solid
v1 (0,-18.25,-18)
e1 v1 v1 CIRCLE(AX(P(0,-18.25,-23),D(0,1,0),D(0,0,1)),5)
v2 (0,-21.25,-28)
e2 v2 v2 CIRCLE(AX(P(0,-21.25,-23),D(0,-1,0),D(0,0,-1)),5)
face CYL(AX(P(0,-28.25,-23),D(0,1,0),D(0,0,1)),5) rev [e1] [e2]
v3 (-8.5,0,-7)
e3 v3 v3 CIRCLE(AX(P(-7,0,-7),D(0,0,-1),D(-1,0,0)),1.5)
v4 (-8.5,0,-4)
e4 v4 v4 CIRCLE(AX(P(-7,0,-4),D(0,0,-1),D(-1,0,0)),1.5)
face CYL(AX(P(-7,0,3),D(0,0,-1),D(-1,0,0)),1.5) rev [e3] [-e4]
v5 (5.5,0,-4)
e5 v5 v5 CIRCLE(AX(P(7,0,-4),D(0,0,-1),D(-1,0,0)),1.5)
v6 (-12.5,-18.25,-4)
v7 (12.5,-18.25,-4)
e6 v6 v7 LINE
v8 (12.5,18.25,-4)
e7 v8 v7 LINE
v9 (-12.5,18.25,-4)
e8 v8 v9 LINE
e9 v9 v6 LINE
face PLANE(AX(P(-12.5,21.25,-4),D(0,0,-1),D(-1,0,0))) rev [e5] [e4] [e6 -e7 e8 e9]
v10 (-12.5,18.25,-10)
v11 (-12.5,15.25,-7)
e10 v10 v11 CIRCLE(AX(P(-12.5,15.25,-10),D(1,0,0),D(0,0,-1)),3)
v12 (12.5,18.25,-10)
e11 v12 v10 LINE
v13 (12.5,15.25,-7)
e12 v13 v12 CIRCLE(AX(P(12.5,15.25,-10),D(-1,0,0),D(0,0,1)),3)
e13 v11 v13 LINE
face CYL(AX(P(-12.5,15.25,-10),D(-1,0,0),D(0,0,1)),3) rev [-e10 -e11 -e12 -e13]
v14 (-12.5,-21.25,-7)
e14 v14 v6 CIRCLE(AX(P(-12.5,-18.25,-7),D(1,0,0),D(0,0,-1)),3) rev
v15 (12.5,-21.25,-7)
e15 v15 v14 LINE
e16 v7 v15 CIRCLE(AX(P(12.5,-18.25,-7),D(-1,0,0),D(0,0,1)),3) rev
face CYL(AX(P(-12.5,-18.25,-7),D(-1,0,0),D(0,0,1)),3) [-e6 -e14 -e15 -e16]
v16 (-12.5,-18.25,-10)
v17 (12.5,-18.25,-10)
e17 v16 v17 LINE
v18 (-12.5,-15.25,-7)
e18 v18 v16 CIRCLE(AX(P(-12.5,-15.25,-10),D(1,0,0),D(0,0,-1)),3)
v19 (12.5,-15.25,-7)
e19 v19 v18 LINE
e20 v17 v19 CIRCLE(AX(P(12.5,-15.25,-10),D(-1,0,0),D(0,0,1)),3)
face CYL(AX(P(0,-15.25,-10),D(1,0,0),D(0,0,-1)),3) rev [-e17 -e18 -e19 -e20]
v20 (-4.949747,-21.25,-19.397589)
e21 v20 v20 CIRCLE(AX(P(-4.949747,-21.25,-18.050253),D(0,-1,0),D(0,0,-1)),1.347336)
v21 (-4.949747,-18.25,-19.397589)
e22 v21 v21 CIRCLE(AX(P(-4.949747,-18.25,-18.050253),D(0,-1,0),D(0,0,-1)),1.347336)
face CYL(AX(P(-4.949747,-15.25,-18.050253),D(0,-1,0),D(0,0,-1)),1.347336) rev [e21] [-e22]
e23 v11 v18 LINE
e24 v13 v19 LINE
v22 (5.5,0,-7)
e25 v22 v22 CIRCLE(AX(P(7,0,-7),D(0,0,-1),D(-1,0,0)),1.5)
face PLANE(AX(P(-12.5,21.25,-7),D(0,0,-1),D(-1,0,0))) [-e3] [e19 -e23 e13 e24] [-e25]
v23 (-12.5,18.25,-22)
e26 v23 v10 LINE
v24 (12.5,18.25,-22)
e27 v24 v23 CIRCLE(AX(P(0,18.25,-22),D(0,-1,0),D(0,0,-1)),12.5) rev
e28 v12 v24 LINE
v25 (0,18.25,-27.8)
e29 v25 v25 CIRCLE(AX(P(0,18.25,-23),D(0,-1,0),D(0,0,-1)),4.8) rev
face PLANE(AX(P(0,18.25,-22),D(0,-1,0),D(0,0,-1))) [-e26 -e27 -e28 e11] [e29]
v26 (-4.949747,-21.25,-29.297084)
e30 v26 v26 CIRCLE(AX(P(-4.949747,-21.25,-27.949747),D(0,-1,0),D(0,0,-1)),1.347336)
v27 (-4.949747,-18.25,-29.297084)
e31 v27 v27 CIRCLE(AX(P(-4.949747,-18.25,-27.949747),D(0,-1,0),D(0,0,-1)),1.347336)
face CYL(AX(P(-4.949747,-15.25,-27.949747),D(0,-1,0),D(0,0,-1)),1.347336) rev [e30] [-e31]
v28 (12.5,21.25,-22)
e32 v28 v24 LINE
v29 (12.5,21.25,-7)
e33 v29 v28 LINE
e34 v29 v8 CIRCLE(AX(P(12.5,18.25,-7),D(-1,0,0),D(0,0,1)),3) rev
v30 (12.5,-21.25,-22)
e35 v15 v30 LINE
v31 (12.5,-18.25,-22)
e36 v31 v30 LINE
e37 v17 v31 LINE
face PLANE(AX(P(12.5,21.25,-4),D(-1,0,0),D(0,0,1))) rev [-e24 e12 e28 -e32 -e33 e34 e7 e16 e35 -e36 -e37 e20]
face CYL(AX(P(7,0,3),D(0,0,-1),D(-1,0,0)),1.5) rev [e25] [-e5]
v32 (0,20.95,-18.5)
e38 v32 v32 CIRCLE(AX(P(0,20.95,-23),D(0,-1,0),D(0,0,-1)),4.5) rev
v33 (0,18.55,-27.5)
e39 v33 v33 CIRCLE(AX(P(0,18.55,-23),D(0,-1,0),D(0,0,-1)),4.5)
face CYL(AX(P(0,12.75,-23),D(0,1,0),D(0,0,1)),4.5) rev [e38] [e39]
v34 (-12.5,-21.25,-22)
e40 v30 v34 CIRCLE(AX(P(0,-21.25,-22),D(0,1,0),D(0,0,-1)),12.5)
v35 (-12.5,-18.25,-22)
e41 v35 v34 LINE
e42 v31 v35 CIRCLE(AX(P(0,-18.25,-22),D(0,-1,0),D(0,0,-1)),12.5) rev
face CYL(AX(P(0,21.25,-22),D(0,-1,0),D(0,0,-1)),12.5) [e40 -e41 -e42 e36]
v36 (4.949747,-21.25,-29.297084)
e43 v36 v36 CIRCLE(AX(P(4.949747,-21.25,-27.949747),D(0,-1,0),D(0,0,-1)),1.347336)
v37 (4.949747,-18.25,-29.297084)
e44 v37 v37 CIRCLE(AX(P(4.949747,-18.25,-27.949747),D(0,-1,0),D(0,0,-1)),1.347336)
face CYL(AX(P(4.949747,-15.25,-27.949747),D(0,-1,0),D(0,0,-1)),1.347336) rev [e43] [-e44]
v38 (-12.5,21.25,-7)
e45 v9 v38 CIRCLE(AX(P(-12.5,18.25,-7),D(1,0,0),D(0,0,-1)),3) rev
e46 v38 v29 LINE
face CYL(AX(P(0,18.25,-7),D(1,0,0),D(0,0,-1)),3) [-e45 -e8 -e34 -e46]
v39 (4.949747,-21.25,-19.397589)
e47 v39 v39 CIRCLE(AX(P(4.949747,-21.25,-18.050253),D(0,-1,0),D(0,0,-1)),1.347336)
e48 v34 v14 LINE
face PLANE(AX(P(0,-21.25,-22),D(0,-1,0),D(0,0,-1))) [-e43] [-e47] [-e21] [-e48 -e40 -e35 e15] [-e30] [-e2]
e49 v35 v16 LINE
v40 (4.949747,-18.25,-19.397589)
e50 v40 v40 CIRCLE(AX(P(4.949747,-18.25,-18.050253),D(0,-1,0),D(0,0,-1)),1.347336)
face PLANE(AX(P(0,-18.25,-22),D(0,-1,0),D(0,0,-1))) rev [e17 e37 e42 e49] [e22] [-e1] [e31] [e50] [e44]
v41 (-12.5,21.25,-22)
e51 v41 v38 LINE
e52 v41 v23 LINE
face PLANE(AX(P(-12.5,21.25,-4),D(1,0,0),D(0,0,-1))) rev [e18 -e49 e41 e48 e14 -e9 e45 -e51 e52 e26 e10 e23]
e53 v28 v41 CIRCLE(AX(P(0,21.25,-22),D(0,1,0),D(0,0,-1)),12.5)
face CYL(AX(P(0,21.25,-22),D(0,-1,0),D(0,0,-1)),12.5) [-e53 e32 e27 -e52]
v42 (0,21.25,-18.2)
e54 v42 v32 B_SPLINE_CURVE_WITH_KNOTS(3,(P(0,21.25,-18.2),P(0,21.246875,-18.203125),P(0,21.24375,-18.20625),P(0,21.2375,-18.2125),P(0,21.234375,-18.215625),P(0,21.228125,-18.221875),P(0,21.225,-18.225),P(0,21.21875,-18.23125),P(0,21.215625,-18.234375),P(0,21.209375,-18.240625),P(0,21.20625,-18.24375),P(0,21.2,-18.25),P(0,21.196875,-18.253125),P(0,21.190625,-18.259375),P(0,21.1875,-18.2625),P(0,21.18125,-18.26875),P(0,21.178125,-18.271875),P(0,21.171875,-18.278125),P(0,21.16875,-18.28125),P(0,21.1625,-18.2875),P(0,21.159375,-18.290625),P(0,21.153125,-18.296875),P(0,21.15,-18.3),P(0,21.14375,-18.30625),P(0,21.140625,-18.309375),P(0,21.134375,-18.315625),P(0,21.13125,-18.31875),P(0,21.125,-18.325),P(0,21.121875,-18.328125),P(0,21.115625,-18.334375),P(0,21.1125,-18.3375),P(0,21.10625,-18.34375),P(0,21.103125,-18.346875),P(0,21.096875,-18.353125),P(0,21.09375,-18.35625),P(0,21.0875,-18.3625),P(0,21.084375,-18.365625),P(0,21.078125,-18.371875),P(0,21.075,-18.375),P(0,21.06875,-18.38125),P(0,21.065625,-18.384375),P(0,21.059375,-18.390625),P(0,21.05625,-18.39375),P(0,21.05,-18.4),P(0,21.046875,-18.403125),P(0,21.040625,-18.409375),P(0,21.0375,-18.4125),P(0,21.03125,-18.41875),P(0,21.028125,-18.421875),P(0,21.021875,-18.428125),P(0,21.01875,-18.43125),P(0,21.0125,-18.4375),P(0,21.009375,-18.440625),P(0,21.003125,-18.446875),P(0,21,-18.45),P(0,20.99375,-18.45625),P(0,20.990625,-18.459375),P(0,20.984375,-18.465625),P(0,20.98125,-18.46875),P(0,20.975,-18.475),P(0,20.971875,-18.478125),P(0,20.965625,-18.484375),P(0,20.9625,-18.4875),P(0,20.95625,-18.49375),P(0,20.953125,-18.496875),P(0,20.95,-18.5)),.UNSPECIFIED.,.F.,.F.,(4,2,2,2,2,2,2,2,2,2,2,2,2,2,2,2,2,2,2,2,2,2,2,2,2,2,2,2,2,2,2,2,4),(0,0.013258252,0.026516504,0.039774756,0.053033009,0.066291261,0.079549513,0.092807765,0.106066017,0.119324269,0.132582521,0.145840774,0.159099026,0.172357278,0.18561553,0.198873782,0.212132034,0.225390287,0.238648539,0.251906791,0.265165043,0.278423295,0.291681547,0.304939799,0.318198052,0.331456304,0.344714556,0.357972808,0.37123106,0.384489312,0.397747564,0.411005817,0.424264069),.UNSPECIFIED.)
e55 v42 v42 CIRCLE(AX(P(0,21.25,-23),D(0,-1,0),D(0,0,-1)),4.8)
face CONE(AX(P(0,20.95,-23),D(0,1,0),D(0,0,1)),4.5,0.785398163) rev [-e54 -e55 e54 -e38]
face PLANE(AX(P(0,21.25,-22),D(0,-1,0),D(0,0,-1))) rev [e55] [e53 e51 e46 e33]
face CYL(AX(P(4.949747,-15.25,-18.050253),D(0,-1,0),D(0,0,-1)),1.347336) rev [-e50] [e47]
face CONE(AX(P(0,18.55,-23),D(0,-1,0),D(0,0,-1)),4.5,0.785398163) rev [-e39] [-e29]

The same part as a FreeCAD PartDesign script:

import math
import FreeCAD as App
import Part
import Sketcher
from FreeCAD import Vector


def edges_at(feature, points):
    """Names of the edges that pass closest to the given points."""
    edges = feature.Shape.Edges
    near = lambda p: min(range(len(edges)), key=lambda i: edges[i].distToShape(Part.Vertex(*p))[0])
    return sorted({f"Edge{near(p) + 1}" for p in points})


def faces_at(feature, points):
    """Names of the faces that lie closest to the given points."""
    faces = feature.Shape.Faces
    near = lambda p: min(range(len(faces)), key=lambda i: faces[i].distToShape(Part.Vertex(*p))[0])
    return sorted({f"Face{near(p) + 1}" for p in points})

doc = App.newDocument("Part")
body = doc.addObject("PartDesign::Body", "Body")

# Sketch on XZ plane
sketch1 = body.newObject("Sketcher::SketchObject", "Sketch")
sketch1.AttachmentSupport = (doc.getObject("XZ_Plane"), [""])
sketch1.MapMode = "FlatFace"
sketch1.addGeometry([
    Part.LineSegment(Vector(-12, -4, 0), Vector(12, -4, 0)),
    Part.LineSegment(Vector(12, -4, 0), Vector(12, -22, 0)),
    Part.ArcOfCircle(Part.Circle(Vector(0, -22, 0), Vector(0, 0, 1), 12), math.radians(180), math.radians(360)),
    Part.LineSegment(Vector(-12, -22, 0), Vector(-12, -4, 0)),
], False)
sketch1.addConstraint([
    Sketcher.Constraint("Coincident", 0, 2, 1, 1),
    Sketcher.Constraint("Tangent", 1, 2, 2, 2),
    Sketcher.Constraint("Tangent", 2, 1, 3, 1),
    Sketcher.Constraint("Coincident", 3, 2, 0, 1),
    Sketcher.Constraint("Horizontal", 0),
    Sketcher.Constraint("Vertical", 1),
    Sketcher.Constraint("Vertical", 3),
    Sketcher.Constraint("PointOnObject", 2, 3, -2),
    Sketcher.Constraint("Radius", 2, 12.5),
    Sketcher.Constraint("DistanceY", 1, 2, 1, 1, 18.0),
    Sketcher.Constraint("DistanceY", 2, 3, -1, 1, 22.0),
])
pad1 = body.newObject("PartDesign::Pad", "Pad")
pad1.Profile = sketch1
pad1.Length = 42.5
pad1.Midplane = True
doc.recompute()

thickness = body.newObject("PartDesign::Thickness", "Thickness")
thickness.Base = (pad1, faces_at(pad1, [(0, 0, -34.5), (12.5, 0, -13), (-12.5, 0, -13)]))
thickness.Value = 3
thickness.Reversed = True
thickness.Join = "Intersection"

# Sketch on XZ plane
sketch2 = body.newObject("Sketcher::SketchObject", "Sketch001")
sketch2.AttachmentSupport = (doc.getObject("XZ_Plane"), [""])
sketch2.MapMode = "FlatFace"
sketch2.AttachmentOffset = App.Placement(Vector(0, 0, -21.25), App.Rotation())
sketch2.addGeometry(Part.Circle(Vector(0, -23, 0), Vector(0, 0, 1), 4.5), False)
sketch2.addConstraint([
    Sketcher.Constraint("PointOnObject", 0, 3, -2),
    Sketcher.Constraint("Diameter", 0, 9.0),
    Sketcher.Constraint("DistanceY", 0, 3, -1, 1, 23.0),
])
pocket1 = body.newObject("PartDesign::Pocket", "Pocket")
pocket1.Profile = sketch2
pocket1.Length = 8.5
pocket1.Reversed = True

# Sketch on XZ plane
sketch3 = body.newObject("Sketcher::SketchObject", "Sketch002")
sketch3.AttachmentSupport = (doc.getObject("XZ_Plane"), [""])
sketch3.MapMode = "FlatFace"
sketch3.AttachmentOffset = App.Placement(Vector(0, 0, 21.25), App.Rotation())
sketch3.addGeometry([
    Part.Circle(Vector(-4.9, -18.1, 0), Vector(0, 0, 1), 1.3),
    Part.Circle(Vector(4.9, -18.1, 0), Vector(0, 0, 1), 1.3),
    Part.Circle(Vector(4.9, -27.9, 0), Vector(0, 0, 1), 1.3),
    Part.Circle(Vector(-4.9, -27.9, 0), Vector(0, 0, 1), 1.3),
], False)
sketch3.addConstraint([
    Sketcher.Constraint("Equal", 0, 1),
    Sketcher.Constraint("Equal", 1, 2),
    Sketcher.Constraint("Equal", 2, 3),
    Sketcher.Constraint("Symmetric", 0, 3, 1, 3, -2),
    Sketcher.Constraint("Symmetric", 2, 3, 3, 3, -2),
    Sketcher.Constraint("Vertical", 1, 3, 2, 3),
    Sketcher.Constraint("Diameter", 0, 2.694673),
    Sketcher.Constraint("DistanceX", 0, 3, -1, 1, 4.949747),
    Sketcher.Constraint("DistanceY", 0, 3, -1, 1, 18.050253),
    Sketcher.Constraint("DistanceY", 2, 3, -1, 1, 27.949747),
])
pocket2 = body.newObject("PartDesign::Pocket", "Pocket001")
pocket2.Profile = sketch3
pocket2.Length = 6

# Sketch on XY plane
sketch4 = body.newObject("Sketcher::SketchObject", "Sketch003")
sketch4.AttachmentSupport = (doc.getObject("XY_Plane"), [""])
sketch4.MapMode = "FlatFace"
sketch4.AttachmentOffset = App.Placement(Vector(0, 0, -7), App.Rotation())
sketch4.addGeometry([
    Part.Circle(Vector(7, 0, 0), Vector(0, 0, 1), 1.5),
    Part.Circle(Vector(-7, 0, 0), Vector(0, 0, 1), 1.5),
], False)
sketch4.addConstraint([
    Sketcher.Constraint("Equal", 0, 1),
    Sketcher.Constraint("Symmetric", 0, 3, 1, 3, -1, 1),
    Sketcher.Constraint("PointOnObject", 0, 3, -1),
    Sketcher.Constraint("Diameter", 0, 3.0),
    Sketcher.Constraint("DistanceX", -1, 1, 0, 3, 7.0),
])
pocket3 = body.newObject("PartDesign::Pocket", "Pocket002")
pocket3.Profile = sketch4
pocket3.Length = 10
pocket3.Reversed = True
doc.recompute()

fillet = body.newObject("PartDesign::Fillet", "Fillet")
fillet.Base = (pocket3, edges_at(pocket3, [
    (0, -18.25, -7),
    (0, 18.25, -7),
    (0, -21.25, -4),
    (0, 21.25, -4),
]))
fillet.Radius = 3

# Sketch on XZ plane
sketch5 = body.newObject("Sketcher::SketchObject", "Sketch004")
sketch5.AttachmentSupport = (doc.getObject("XZ_Plane"), [""])
sketch5.MapMode = "FlatFace"
sketch5.AttachmentOffset = App.Placement(Vector(0, 0, 18.25), App.Rotation())
sketch5.addGeometry(Part.Circle(Vector(0, -23, 0), Vector(0, 0, 1), 5), False)
sketch5.addConstraint([
    Sketcher.Constraint("PointOnObject", 0, 3, -2),
    Sketcher.Constraint("Diameter", 0, 10.0),
    Sketcher.Constraint("DistanceY", 0, 3, -1, 1, 23.0),
])
pocket4 = body.newObject("PartDesign::Pocket", "Pocket003")
pocket4.Profile = sketch5
pocket4.Length = 10
pocket4.Reversed = True
doc.recompute()

chamfer = body.newObject("PartDesign::Chamfer", "Chamfer")
chamfer.Base = (pocket4, edges_at(pocket4, [(0, 18.25, -27.5), (0, 21.25, -27.5)]))
chamfer.Size = 0.3

doc.recompute()
